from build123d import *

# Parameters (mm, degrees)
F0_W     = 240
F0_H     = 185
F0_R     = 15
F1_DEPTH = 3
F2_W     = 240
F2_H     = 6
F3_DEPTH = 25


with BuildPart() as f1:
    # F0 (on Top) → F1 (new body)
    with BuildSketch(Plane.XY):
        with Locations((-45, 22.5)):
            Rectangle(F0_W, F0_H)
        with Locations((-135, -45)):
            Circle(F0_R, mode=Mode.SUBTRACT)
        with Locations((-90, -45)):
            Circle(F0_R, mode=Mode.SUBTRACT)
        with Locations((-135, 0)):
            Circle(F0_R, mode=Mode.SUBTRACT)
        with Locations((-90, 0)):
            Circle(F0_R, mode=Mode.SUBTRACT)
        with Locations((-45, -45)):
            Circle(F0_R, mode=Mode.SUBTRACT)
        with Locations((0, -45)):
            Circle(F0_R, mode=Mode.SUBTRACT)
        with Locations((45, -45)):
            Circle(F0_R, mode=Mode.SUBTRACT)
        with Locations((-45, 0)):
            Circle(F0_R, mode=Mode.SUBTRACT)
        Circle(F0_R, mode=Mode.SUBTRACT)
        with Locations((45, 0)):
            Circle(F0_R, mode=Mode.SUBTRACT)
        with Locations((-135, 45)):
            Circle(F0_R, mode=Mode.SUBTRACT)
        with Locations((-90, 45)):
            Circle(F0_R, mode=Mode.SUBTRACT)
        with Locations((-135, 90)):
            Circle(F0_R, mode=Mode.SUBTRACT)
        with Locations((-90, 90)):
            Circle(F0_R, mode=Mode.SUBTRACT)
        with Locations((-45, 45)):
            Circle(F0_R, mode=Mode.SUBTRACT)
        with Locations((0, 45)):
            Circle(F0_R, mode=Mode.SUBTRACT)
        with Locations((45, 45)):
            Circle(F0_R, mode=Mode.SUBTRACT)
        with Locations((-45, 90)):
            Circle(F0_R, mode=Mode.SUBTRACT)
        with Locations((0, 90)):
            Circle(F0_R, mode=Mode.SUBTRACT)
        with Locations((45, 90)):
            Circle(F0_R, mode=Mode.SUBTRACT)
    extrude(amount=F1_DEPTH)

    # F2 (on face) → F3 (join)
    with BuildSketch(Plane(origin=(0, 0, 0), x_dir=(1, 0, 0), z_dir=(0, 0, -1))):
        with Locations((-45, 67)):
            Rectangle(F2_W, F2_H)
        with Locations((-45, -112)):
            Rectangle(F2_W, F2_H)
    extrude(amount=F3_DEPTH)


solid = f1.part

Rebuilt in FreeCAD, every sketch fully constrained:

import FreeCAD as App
import Part
import Sketcher

V = App.Vector

doc = App.newDocument("Part")
body = doc.addObject("PartDesign::Body", "Body")

# Sketch on XY plane
sketch1 = doc.addObject("Sketcher::SketchObject", "Sketch")
body.addObject(sketch1)
sketch1.AttachmentSupport = (doc.XY_Plane, [""])
sketch1.MapMode = "FlatFace"
sketch1.addGeometry(Part.LineSegment(V(-165, 115, 0), V(-165, -70, 0)), False)
sketch1.addGeometry(Part.LineSegment(V(-165, -70, 0), V(75, -70, 0)), False)
sketch1.addGeometry(Part.LineSegment(V(75, -70, 0), V(75, 115, 0)), False)
sketch1.addGeometry(Part.LineSegment(V(75, 115, 0), V(-165, 115, 0)), False)
sketch1.addGeometry(Part.Circle(V(-135, -45, 0), V(0, 0, 1), 15), False)
sketch1.addGeometry(Part.Circle(V(-90, -45, 0), V(0, 0, 1), 15), False)
sketch1.addGeometry(Part.Circle(V(-135, 0, 0), V(0, 0, 1), 15), False)
sketch1.addGeometry(Part.Circle(V(-90, 0, 0), V(0, 0, 1), 15), False)
sketch1.addGeometry(Part.Circle(V(-45, -45, 0), V(0, 0, 1), 15), False)
sketch1.addGeometry(Part.Circle(V(0, -45, 0), V(0, 0, 1), 15), False)
sketch1.addGeometry(Part.Circle(V(45, -45, 0), V(0, 0, 1), 15), False)
sketch1.addGeometry(Part.Circle(V(-45, 0, 0), V(0, 0, 1), 15), False)
sketch1.addGeometry(Part.Circle(V(0, 0, 0), V(0, 0, 1), 15), False)
sketch1.addGeometry(Part.Circle(V(45, 0, 0), V(0, 0, 1), 15), False)
sketch1.addGeometry(Part.Circle(V(-135, 45, 0), V(0, 0, 1), 15), False)
sketch1.addGeometry(Part.Circle(V(-90, 45, 0), V(0, 0, 1), 15), False)
sketch1.addGeometry(Part.Circle(V(-135, 90, 0), V(0, 0, 1), 15), False)
sketch1.addGeometry(Part.Circle(V(-90, 90, 0), V(0, 0, 1), 15), False)
sketch1.addGeometry(Part.Circle(V(-45, 45, 0), V(0, 0, 1), 15), False)
sketch1.addGeometry(Part.Circle(V(0, 45, 0), V(0, 0, 1), 15), False)
sketch1.addGeometry(Part.Circle(V(45, 45, 0), V(0, 0, 1), 15), False)
sketch1.addGeometry(Part.Circle(V(-45, 90, 0), V(0, 0, 1), 15), False)
sketch1.addGeometry(Part.Circle(V(0, 90, 0), V(0, 0, 1), 15), False)
sketch1.addGeometry(Part.Circle(V(45, 90, 0), V(0, 0, 1), 15), False)
sketch1.addConstraint(Sketcher.Constraint("Coincident", 0, 2, 1, 1))
sketch1.addConstraint(Sketcher.Constraint("Coincident", 1, 2, 2, 1))
sketch1.addConstraint(Sketcher.Constraint("Coincident", 2, 2, 3, 1))
sketch1.addConstraint(Sketcher.Constraint("Coincident", 3, 2, 0, 1))
sketch1.addConstraint(Sketcher.Constraint("Vertical", 0))
sketch1.addConstraint(Sketcher.Constraint("Horizontal", 1))
sketch1.addConstraint(Sketcher.Constraint("Vertical", 2))
sketch1.addConstraint(Sketcher.Constraint("Horizontal", 3))
sketch1.addConstraint(Sketcher.Constraint("Coincident", 12, 3, -1, 1))
sketch1.addConstraint(Sketcher.Constraint("Equal", 4, 5))
sketch1.addConstraint(Sketcher.Constraint("Equal", 5, 6))
sketch1.addConstraint(Sketcher.Constraint("Equal", 6, 7))
sketch1.addConstraint(Sketcher.Constraint("Equal", 7, 8))
sketch1.addConstraint(Sketcher.Constraint("Equal", 8, 9))
sketch1.addConstraint(Sketcher.Constraint("Equal", 9, 10))
sketch1.addConstraint(Sketcher.Constraint("Equal", 10, 11))
sketch1.addConstraint(Sketcher.Constraint("Equal", 11, 12))
sketch1.addConstraint(Sketcher.Constraint("Equal", 12, 13))
sketch1.addConstraint(Sketcher.Constraint("Equal", 13, 14))
sketch1.addConstraint(Sketcher.Constraint("Equal", 14, 15))
sketch1.addConstraint(Sketcher.Constraint("Equal", 15, 16))
sketch1.addConstraint(Sketcher.Constraint("Equal", 16, 17))
sketch1.addConstraint(Sketcher.Constraint("Equal", 17, 18))
sketch1.addConstraint(Sketcher.Constraint("Equal", 18, 19))
sketch1.addConstraint(Sketcher.Constraint("Equal", 19, 20))
sketch1.addConstraint(Sketcher.Constraint("Equal", 20, 21))
sketch1.addConstraint(Sketcher.Constraint("Equal", 21, 22))
sketch1.addConstraint(Sketcher.Constraint("Equal", 22, 23))
sketch1.addConstraint(Sketcher.Constraint("Symmetric", 11, 3, 13, 3, -1, 1))
sketch1.addConstraint(Sketcher.Constraint("Symmetric", 10, 3, 18, 3, -1, 1))
sketch1.addConstraint(Sketcher.Constraint("Symmetric", 9, 3, 19, 3, -1, 1))
sketch1.addConstraint(Sketcher.Constraint("Symmetric", 8, 3, 20, 3, -1, 1))
sketch1.addConstraint(Sketcher.Constraint("Symmetric", 8, 3, 10, 3, -2))
sketch1.addConstraint(Sketcher.Constraint("Symmetric", 21, 3, 23, 3, -2))
sketch1.addConstraint(Sketcher.Constraint("Symmetric", 4, 3, 14, 3, -1))
sketch1.addConstraint(Sketcher.Constraint("Symmetric", 5, 3, 15, 3, -1))
sketch1.addConstraint(Sketcher.Constraint("PointOnObject", 6, 3, -1))
sketch1.addConstraint(Sketcher.Constraint("PointOnObject", 7, 3, -1))
sketch1.addConstraint(Sketcher.Constraint("PointOnObject", 9, 3, -2))
sketch1.addConstraint(Sketcher.Constraint("PointOnObject", 11, 3, -1))
sketch1.addConstraint(Sketcher.Constraint("PointOnObject", 22, 3, -2))
sketch1.addConstraint(Sketcher.Constraint("Horizontal", 4, 3, 5, 3))
sketch1.addConstraint(Sketcher.Constraint("Horizontal", 5, 3, 8, 3))
sketch1.addConstraint(Sketcher.Constraint("Horizontal", 8, 3, 9, 3))
sketch1.addConstraint(Sketcher.Constraint("Horizontal", 16, 3, 17, 3))
sketch1.addConstraint(Sketcher.Constraint("Horizontal", 17, 3, 21, 3))
sketch1.addConstraint(Sketcher.Constraint("Horizontal", 21, 3, 22, 3))
sketch1.addConstraint(Sketcher.Constraint("Vertical", 4, 3, 6, 3))
sketch1.addConstraint(Sketcher.Constraint("Vertical", 5, 3, 7, 3))
sketch1.addConstraint(Sketcher.Constraint("Vertical", 8, 3, 11, 3))
sketch1.addConstraint(Sketcher.Constraint("Vertical", 14, 3, 16, 3))
sketch1.addConstraint(Sketcher.Constraint("Vertical", 15, 3, 17, 3))
sketch1.addConstraint(Sketcher.Constraint("Vertical", 18, 3, 21, 3))
sketch1.addConstraint(Sketcher.Constraint("Diameter", 4, 30.0))
sketch1.addConstraint(Sketcher.Constraint("DistanceX", 1, 1, 1, 2, 240.0))
sketch1.addConstraint(Sketcher.Constraint("DistanceY", 0, 2, 0, 1, 185.0))
sketch1.addConstraint(Sketcher.Constraint("DistanceX", 4, 3, -1, 1, 135.0))
sketch1.addConstraint(Sketcher.Constraint("DistanceY", 4, 3, -1, 1, 45.0))
sketch1.addConstraint(Sketcher.Constraint("DistanceX", 5, 3, -1, 1, 90.0))
sketch1.addConstraint(Sketcher.Constraint("DistanceX", 8, 3, -1, 1, 45.0))
sketch1.addConstraint(Sketcher.Constraint("DistanceY", -1, 1, 16, 3, 90.0))
sketch1.addConstraint(Sketcher.Constraint("DistanceX", 0, 2, -1, 1, 165.0))
sketch1.addConstraint(Sketcher.Constraint("DistanceY", 0, 2, -1, 1, 70.0))
pad1 = doc.addObject("PartDesign::Pad", "Pad")
body.addObject(pad1)
pad1.Profile = sketch1
pad1.Length = 3

# Sketch on XY plane
sketch2 = doc.addObject("Sketcher::SketchObject", "Sketch001")
body.addObject(sketch2)
sketch2.AttachmentSupport = (doc.XY_Plane, [""])
sketch2.MapMode = "FlatFace"
sketch2.addGeometry(Part.LineSegment(V(-165, -70, 0), V(-165, -64, 0)), False)
sketch2.addGeometry(Part.LineSegment(V(-165, -64, 0), V(75, -64, 0)), False)
sketch2.addGeometry(Part.LineSegment(V(75, -64, 0), V(75, -70, 0)), False)
sketch2.addGeometry(Part.LineSegment(V(75, -70, 0), V(-165, -70, 0)), False)
sketch2.addGeometry(Part.LineSegment(V(-165, 109, 0), V(-165, 115, 0)), False)
sketch2.addGeometry(Part.LineSegment(V(-165, 115, 0), V(75, 115, 0)), False)
sketch2.addGeometry(Part.LineSegment(V(75, 115, 0), V(75, 109, 0)), False)
sketch2.addGeometry(Part.LineSegment(V(75, 109, 0), V(-165, 109, 0)), False)
sketch2.addConstraint(Sketcher.Constraint("Coincident", 0, 2, 1, 1))
sketch2.addConstraint(Sketcher.Constraint("Coincident", 1, 2, 2, 1))
sketch2.addConstraint(Sketcher.Constraint("Coincident", 2, 2, 3, 1))
sketch2.addConstraint(Sketcher.Constraint("Coincident", 3, 2, 0, 1))
sketch2.addConstraint(Sketcher.Constraint("Coincident", 4, 2, 5, 1))
sketch2.addConstraint(Sketcher.Constraint("Coincident", 5, 2, 6, 1))
sketch2.addConstraint(Sketcher.Constraint("Coincident", 6, 2, 7, 1))
sketch2.addConstraint(Sketcher.Constraint("Coincident", 7, 2, 4, 1))
sketch2.addConstraint(Sketcher.Constraint("Vertical", 0))
sketch2.addConstraint(Sketcher.Constraint("Horizontal", 1))
sketch2.addConstraint(Sketcher.Constraint("Vertical", 2))
sketch2.addConstraint(Sketcher.Constraint("Horizontal", 3))
sketch2.addConstraint(Sketcher.Constraint("Vertical", 4))
sketch2.addConstraint(Sketcher.Constraint("Horizontal", 5))
sketch2.addConstraint(Sketcher.Constraint("Vertical", 6))
sketch2.addConstraint(Sketcher.Constraint("Horizontal", 7))
sketch2.addConstraint(Sketcher.Constraint("Vertical", 3, 2, 4, 2))
sketch2.addConstraint(Sketcher.Constraint("Vertical", 2, 2, 5, 2))
sketch2.addConstraint(Sketcher.Constraint("Equal", 2, 4))
sketch2.addConstraint(Sketcher.Constraint("DistanceX", 1, 1, 1, 2, 240.0))
sketch2.addConstraint(Sketcher.Constraint("DistanceY", 0, 1, 0, 2, 6.0))
sketch2.addConstraint(Sketcher.Constraint("DistanceX", 0, 2, -1, 1, 165.0))
sketch2.addConstraint(Sketcher.Constraint("DistanceY", 0, 2, -1, 1, 64.0))
sketch2.addConstraint(Sketcher.Constraint("DistanceY", -1, 1, 4, 2, 115.0))
pad2 = doc.addObject("PartDesign::Pad", "Pad001")
body.addObject(pad2)
pad2.Profile = sketch2
pad2.Length = 25
pad2.Reversed = True

doc.recompute()
